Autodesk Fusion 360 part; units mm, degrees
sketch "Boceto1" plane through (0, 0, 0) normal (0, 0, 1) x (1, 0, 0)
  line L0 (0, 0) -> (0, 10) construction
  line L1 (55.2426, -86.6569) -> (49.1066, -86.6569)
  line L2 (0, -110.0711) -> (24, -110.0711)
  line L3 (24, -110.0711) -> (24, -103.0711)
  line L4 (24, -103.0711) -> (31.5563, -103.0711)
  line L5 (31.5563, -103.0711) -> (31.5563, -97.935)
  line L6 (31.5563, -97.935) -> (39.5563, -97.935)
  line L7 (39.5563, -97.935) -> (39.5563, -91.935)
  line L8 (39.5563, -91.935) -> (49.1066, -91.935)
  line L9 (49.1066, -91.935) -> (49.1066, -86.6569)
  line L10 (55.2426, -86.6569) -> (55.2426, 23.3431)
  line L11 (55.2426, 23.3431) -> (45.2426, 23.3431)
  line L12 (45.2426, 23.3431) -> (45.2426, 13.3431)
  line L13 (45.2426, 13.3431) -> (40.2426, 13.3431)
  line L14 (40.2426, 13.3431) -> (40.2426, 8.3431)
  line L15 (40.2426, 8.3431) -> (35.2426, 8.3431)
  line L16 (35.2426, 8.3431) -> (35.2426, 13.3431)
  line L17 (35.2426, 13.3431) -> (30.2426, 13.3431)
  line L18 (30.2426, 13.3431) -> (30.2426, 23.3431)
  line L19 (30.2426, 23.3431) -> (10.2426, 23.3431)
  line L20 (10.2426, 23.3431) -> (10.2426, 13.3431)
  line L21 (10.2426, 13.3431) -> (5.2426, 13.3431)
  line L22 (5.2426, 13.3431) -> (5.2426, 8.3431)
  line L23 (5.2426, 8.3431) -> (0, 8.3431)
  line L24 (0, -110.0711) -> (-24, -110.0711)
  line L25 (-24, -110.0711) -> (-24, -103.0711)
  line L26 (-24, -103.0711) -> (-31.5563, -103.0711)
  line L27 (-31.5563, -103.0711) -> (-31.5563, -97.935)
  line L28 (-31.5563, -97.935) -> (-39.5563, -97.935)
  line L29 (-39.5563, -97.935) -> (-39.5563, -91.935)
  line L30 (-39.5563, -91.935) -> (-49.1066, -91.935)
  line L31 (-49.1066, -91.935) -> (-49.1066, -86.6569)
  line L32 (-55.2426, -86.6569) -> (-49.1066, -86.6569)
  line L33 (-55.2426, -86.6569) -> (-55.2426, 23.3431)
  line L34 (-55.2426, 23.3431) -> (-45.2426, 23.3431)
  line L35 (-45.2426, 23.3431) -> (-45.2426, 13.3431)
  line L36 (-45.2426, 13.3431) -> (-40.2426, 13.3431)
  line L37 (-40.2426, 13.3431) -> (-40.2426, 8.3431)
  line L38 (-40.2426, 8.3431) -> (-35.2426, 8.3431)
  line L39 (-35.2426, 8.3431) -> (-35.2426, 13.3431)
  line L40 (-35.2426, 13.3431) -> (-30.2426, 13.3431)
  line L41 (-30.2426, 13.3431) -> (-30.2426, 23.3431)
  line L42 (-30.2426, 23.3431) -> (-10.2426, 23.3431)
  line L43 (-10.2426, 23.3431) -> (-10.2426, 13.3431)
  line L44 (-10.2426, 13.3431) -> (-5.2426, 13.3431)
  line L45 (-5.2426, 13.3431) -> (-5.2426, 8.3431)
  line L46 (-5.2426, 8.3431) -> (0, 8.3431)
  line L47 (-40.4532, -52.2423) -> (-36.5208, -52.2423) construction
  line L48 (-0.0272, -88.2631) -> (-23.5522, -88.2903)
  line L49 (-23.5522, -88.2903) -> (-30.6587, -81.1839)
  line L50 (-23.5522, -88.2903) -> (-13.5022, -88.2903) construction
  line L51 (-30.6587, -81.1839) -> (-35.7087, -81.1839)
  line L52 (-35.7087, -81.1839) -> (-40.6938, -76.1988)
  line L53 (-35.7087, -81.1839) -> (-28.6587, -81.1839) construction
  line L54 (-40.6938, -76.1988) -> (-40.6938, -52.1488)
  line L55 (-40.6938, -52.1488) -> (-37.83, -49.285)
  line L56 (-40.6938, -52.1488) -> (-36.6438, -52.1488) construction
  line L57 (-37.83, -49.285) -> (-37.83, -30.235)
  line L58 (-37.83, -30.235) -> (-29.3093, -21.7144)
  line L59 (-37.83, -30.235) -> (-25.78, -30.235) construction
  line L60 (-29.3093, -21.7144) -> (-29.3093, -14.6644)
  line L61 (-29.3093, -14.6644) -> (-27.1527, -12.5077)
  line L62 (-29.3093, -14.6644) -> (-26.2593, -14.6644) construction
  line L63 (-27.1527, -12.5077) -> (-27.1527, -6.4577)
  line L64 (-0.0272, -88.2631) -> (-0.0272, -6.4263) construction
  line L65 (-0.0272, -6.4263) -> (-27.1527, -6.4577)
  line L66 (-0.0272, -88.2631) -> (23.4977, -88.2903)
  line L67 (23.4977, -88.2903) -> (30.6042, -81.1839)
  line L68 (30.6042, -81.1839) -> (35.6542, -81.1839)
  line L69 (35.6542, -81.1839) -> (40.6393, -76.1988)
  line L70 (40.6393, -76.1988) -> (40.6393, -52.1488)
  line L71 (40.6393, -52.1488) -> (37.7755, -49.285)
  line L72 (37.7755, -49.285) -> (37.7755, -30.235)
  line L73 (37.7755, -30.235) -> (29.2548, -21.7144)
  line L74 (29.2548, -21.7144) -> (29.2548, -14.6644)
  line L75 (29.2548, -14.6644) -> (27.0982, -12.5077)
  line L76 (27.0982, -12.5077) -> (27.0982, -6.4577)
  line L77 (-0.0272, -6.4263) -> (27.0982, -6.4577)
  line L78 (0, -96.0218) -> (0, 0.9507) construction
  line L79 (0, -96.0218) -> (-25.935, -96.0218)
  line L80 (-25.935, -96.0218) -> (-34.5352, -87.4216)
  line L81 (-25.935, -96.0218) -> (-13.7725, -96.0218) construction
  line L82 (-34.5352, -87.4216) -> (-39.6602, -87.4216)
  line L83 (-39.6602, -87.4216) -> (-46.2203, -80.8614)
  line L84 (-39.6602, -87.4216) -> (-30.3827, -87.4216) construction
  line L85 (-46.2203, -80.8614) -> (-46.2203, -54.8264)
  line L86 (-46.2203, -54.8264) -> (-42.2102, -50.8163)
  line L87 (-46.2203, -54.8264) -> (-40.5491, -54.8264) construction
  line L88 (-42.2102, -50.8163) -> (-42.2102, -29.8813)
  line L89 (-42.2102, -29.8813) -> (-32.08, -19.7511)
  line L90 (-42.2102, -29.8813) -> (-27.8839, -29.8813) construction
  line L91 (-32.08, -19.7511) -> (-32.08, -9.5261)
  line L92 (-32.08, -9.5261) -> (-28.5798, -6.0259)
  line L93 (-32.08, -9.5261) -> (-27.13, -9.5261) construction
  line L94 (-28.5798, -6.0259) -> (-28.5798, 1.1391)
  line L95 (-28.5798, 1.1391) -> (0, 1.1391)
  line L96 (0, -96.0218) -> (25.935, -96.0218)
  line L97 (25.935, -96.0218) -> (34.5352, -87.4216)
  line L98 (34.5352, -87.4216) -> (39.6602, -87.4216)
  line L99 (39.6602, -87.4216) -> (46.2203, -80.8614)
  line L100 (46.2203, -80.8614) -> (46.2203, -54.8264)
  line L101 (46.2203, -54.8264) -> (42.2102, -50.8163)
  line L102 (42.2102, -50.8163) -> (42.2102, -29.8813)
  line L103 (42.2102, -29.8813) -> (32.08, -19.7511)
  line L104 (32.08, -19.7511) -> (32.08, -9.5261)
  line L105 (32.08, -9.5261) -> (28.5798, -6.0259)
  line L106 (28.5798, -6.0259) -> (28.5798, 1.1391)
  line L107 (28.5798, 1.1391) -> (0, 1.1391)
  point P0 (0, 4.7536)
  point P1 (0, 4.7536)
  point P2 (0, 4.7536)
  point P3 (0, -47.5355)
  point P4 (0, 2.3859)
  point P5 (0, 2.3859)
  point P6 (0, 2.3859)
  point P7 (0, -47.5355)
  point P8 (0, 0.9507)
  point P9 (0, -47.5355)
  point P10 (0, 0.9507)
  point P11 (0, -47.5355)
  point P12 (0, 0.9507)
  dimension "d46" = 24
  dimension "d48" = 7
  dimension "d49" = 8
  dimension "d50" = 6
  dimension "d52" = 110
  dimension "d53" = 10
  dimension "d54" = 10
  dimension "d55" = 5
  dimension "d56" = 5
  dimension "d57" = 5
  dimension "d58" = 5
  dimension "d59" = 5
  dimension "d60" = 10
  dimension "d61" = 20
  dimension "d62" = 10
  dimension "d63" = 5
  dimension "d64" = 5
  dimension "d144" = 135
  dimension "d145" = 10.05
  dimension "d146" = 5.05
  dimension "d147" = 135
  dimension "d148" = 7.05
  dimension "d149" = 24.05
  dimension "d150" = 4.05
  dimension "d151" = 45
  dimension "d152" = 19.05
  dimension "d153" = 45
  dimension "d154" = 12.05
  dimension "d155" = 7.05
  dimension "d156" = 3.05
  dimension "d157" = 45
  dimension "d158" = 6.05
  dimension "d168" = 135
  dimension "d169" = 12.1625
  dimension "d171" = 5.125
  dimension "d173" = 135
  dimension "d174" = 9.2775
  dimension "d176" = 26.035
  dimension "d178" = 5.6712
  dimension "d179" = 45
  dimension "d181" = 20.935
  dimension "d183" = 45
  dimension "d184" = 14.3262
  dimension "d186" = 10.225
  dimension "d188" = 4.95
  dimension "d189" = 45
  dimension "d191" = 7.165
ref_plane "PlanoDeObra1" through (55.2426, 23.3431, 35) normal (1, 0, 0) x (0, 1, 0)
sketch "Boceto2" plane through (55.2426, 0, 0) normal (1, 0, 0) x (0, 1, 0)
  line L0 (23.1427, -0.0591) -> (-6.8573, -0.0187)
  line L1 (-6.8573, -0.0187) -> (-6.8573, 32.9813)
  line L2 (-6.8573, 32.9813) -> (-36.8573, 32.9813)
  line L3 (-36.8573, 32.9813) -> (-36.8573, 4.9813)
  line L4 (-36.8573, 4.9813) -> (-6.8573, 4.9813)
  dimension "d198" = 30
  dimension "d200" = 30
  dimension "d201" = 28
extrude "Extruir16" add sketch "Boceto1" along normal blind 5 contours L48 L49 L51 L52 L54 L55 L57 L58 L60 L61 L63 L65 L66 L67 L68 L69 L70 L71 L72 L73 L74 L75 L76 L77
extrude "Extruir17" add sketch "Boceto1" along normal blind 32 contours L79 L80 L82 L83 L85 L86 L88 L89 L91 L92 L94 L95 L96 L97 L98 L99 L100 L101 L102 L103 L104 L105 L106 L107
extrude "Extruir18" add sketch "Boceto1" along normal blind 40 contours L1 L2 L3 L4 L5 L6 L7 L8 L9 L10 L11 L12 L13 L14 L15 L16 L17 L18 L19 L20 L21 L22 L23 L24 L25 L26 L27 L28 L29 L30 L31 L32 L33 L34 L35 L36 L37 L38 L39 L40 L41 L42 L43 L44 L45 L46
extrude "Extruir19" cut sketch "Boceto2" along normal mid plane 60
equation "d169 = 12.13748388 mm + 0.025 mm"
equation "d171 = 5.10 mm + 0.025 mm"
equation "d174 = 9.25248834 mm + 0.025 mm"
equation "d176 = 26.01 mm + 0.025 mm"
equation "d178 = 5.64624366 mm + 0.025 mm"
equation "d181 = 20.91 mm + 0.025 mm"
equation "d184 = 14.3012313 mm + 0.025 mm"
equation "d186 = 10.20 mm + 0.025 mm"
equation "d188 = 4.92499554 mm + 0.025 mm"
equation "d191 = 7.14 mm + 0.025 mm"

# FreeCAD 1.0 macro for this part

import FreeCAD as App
import Part
import Sketcher
from FreeCAD import Vector
Q = App.Units.Quantity

doc = App.newDocument("Part")
body = doc.addObject("PartDesign::Body", "Body")

sketch1 = body.newObject("Sketcher::SketchObject", "Sketch")
sketch1.AttachmentSupport = (doc.getObject("XY_Plane"), [""])
sketch1.MapMode = "FlatFace"
sketch1.addGeometry(Part.LineSegment(Vector(-23.5522, -88.2903, 0), Vector(-0.0272, -88.2631, 0)), False)
sketch1.addGeometry(Part.LineSegment(Vector(-0.0272, -88.2631, 0), Vector(23.4977, -88.2903, 0)), False)
sketch1.addGeometry(Part.LineSegment(Vector(23.4977, -88.2903, 0), Vector(30.6042, -81.1839, 0)), False)
sketch1.addGeometry(Part.LineSegment(Vector(30.6042, -81.1839, 0), Vector(35.6542, -81.1839, 0)), False)
sketch1.addGeometry(Part.LineSegment(Vector(35.6542, -81.1839, 0), Vector(40.6393, -76.1988, 0)), False)
sketch1.addGeometry(Part.LineSegment(Vector(40.6393, -76.1988, 0), Vector(40.6393, -52.1488, 0)), False)
sketch1.addGeometry(Part.LineSegment(Vector(40.6393, -52.1488, 0), Vector(37.7755, -49.285, 0)), False)
sketch1.addGeometry(Part.LineSegment(Vector(37.7755, -49.285, 0), Vector(37.7755, -30.235, 0)), False)
sketch1.addGeometry(Part.LineSegment(Vector(37.7755, -30.235, 0), Vector(29.2548, -21.7144, 0)), False)
sketch1.addGeometry(Part.LineSegment(Vector(29.2548, -21.7144, 0), Vector(29.2548, -14.6644, 0)), False)
sketch1.addGeometry(Part.LineSegment(Vector(29.2548, -14.6644, 0), Vector(27.0982, -12.5077, 0)), False)
sketch1.addGeometry(Part.LineSegment(Vector(27.0982, -12.5077, 0), Vector(27.0982, -6.4577, 0)), False)
sketch1.addGeometry(Part.LineSegment(Vector(27.0982, -6.4577, 0), Vector(-0.0272, -6.4263, 0)), False)
sketch1.addGeometry(Part.LineSegment(Vector(-0.0272, -6.4263, 0), Vector(-27.1527, -6.4577, 0)), False)
sketch1.addGeometry(Part.LineSegment(Vector(-27.1527, -6.4577, 0), Vector(-27.1527, -12.5077, 0)), False)
sketch1.addGeometry(Part.LineSegment(Vector(-27.1527, -12.5077, 0), Vector(-29.3093, -14.6644, 0)), False)
sketch1.addGeometry(Part.LineSegment(Vector(-29.3093, -14.6644, 0), Vector(-29.3093, -21.7144, 0)), False)
sketch1.addGeometry(Part.LineSegment(Vector(-29.3093, -21.7144, 0), Vector(-37.83, -30.235, 0)), False)
sketch1.addGeometry(Part.LineSegment(Vector(-37.83, -30.235, 0), Vector(-37.83, -49.285, 0)), False)
sketch1.addGeometry(Part.LineSegment(Vector(-37.83, -49.285, 0), Vector(-40.6938, -52.1488, 0)), False)
sketch1.addGeometry(Part.LineSegment(Vector(-40.6938, -52.1488, 0), Vector(-40.6938, -76.1988, 0)), False)
sketch1.addGeometry(Part.LineSegment(Vector(-40.6938, -76.1988, 0), Vector(-35.7087, -81.1839, 0)), False)
sketch1.addGeometry(Part.LineSegment(Vector(-35.7087, -81.1839, 0), Vector(-30.6587, -81.1839, 0)), False)
sketch1.addGeometry(Part.LineSegment(Vector(-30.6587, -81.1839, 0), Vector(-23.5522, -88.2903, 0)), False)
sketch1.addConstraint(Sketcher.Constraint("Coincident", 0, 2, 1, 1))
sketch1.addConstraint(Sketcher.Constraint("Coincident", 1, 2, 2, 1))
sketch1.addConstraint(Sketcher.Constraint("Coincident", 2, 2, 3, 1))
sketch1.addConstraint(Sketcher.Constraint("Coincident", 3, 2, 4, 1))
sketch1.addConstraint(Sketcher.Constraint("Coincident", 4, 2, 5, 1))
sketch1.addConstraint(Sketcher.Constraint("Coincident", 5, 2, 6, 1))
sketch1.addConstraint(Sketcher.Constraint("Coincident", 6, 2, 7, 1))
sketch1.addConstraint(Sketcher.Constraint("Coincident", 7, 2, 8, 1))
sketch1.addConstraint(Sketcher.Constraint("Coincident", 8, 2, 9, 1))
sketch1.addConstraint(Sketcher.Constraint("Coincident", 9, 2, 10, 1))
sketch1.addConstraint(Sketcher.Constraint("Coincident", 10, 2, 11, 1))
sketch1.addConstraint(Sketcher.Constraint("Coincident", 11, 2, 12, 1))
sketch1.addConstraint(Sketcher.Constraint("Coincident", 12, 2, 13, 1))
sketch1.addConstraint(Sketcher.Constraint("Coincident", 13, 2, 14, 1))
sketch1.addConstraint(Sketcher.Constraint("Coincident", 14, 2, 15, 1))
sketch1.addConstraint(Sketcher.Constraint("Coincident", 15, 2, 16, 1))
sketch1.addConstraint(Sketcher.Constraint("Coincident", 16, 2, 17, 1))
sketch1.addConstraint(Sketcher.Constraint("Coincident", 17, 2, 18, 1))
sketch1.addConstraint(Sketcher.Constraint("Coincident", 18, 2, 19, 1))
sketch1.addConstraint(Sketcher.Constraint("Coincident", 19, 2, 20, 1))
sketch1.addConstraint(Sketcher.Constraint("Coincident", 20, 2, 21, 1))
sketch1.addConstraint(Sketcher.Constraint("Coincident", 21, 2, 22, 1))
sketch1.addConstraint(Sketcher.Constraint("Coincident", 22, 2, 23, 1))
sketch1.addConstraint(Sketcher.Constraint("Coincident", 23, 2, 0, 1))
sketch1.addConstraint(Sketcher.Constraint("Horizontal", 3))
sketch1.addConstraint(Sketcher.Constraint("Vertical", 5))
sketch1.addConstraint(Sketcher.Constraint("Vertical", 7))
sketch1.addConstraint(Sketcher.Constraint("Vertical", 9))
sketch1.addConstraint(Sketcher.Constraint("Vertical", 11))
sketch1.addConstraint(Sketcher.Constraint("Vertical", 14))
sketch1.addConstraint(Sketcher.Constraint("Vertical", 16))
sketch1.addConstraint(Sketcher.Constraint("Vertical", 18))
sketch1.addConstraint(Sketcher.Constraint("Vertical", 20))
sketch1.addConstraint(Sketcher.Constraint("Horizontal", 22))
sketch1.addConstraint(Sketcher.Constraint("Parallel", 2, 4))
sketch1.addConstraint(Sketcher.Constraint("Perpendicular", 4, 6))
sketch1.addConstraint(Sketcher.Constraint("Parallel", 6, 8))
sketch1.addConstraint(Sketcher.Constraint("Parallel", 8, 10))
sketch1.addConstraint(Sketcher.Constraint("Parallel", 1, 12))
sketch1.addConstraint(Sketcher.Constraint("Parallel", 0, 13))
sketch1.addConstraint(Sketcher.Constraint("Perpendicular", 10, 15))
sketch1.addConstraint(Sketcher.Constraint("Parallel", 15, 17))
sketch1.addConstraint(Sketcher.Constraint("Parallel", 17, 19))
sketch1.addConstraint(Sketcher.Constraint("Perpendicular", 19, 21))
sketch1.addConstraint(Sketcher.Constraint("Parallel", 21, 23))
sketch1.addConstraint(Sketcher.Constraint("Horizontal", 11, 2, 13, 2))
sketch1.addConstraint(Sketcher.Constraint("Horizontal", 10, 2, 14, 2))
sketch1.addConstraint(Sketcher.Constraint("Horizontal", 9, 2, 15, 2))
sketch1.addConstraint(Sketcher.Constraint("Horizontal", 8, 2, 16, 2))
sketch1.addConstraint(Sketcher.Constraint("Horizontal", 7, 2, 17, 2))
sketch1.addConstraint(Sketcher.Constraint("Horizontal", 6, 2, 18, 2))
sketch1.addConstraint(Sketcher.Constraint("Horizontal", 5, 2, 19, 2))
sketch1.addConstraint(Sketcher.Constraint("Horizontal", 4, 2, 20, 2))
sketch1.addConstraint(Sketcher.Constraint("Horizontal", 3, 2, 21, 2))
sketch1.addConstraint(Sketcher.Constraint("Vertical", 0, 2, 12, 2))
sketch1.addConstraint(Sketcher.Constraint("Equal", 3, 22))
sketch1.addConstraint(Sketcher.Constraint("Equal", 0, 1))
sketch1.addConstraint(Sketcher.Constraint("Equal", 12, 13))
sketch1.addConstraint(Sketcher.Constraint("DistanceX", 3, 1, 3, 2, Q("5.05 mm")))
sketch1.addConstraint(Sketcher.Constraint("DistanceY", 5, 1, 5, 2, Q("24.05 mm")))
sketch1.addConstraint(Sketcher.Constraint("DistanceY", 7, 1, 7, 2, Q("19.05 mm")))
sketch1.addConstraint(Sketcher.Constraint("DistanceY", 9, 1, 9, 2, Q("7.05 mm")))
sketch1.addConstraint(Sketcher.Constraint("DistanceY", 11, 1, 11, 2, Q("6.05 mm")))
sketch1.addConstraint(Sketcher.Constraint("Distance", 2, Q("10.05 mm")))
sketch1.addConstraint(Sketcher.Constraint("Distance", 4, Q("7.05 mm")))
sketch1.addConstraint(Sketcher.Constraint("Distance", 6, Q("4.05 mm")))
sketch1.addConstraint(Sketcher.Constraint("Distance", 8, Q("12.05 mm")))
sketch1.addConstraint(Sketcher.Constraint("Distance", 10, Q("3.05 mm")))
sketch1.addConstraint(Sketcher.Constraint("DistanceX", 17, 2, -1, 1, Q("37.83 mm")))
sketch1.addConstraint(Sketcher.Constraint("Distance", 0, Q("23.525 mm")))
sketch1.addConstraint(Sketcher.Constraint("DistanceY", 0, 2, -1, 1, Q("88.263 mm")))
sketch1.addConstraint(Sketcher.Constraint("DistanceY", 2, 2, -1, 1, Q("81.184 mm")))
pad1 = body.newObject("PartDesign::Pad", "Pad")
pad1.Profile = sketch1
pad1.Length = 5

sketch2 = body.newObject("Sketcher::SketchObject", "Sketch001")
sketch2.AttachmentSupport = (doc.getObject("XY_Plane"), [""])
sketch2.MapMode = "FlatFace"
sketch2.addGeometry(Part.LineSegment(Vector(-25.935, -96.0218, 0), Vector(25.935, -96.0218, 0)), False)
sketch2.addGeometry(Part.LineSegment(Vector(25.935, -96.0218, 0), Vector(34.5352, -87.4216, 0)), False)
sketch2.addGeometry(Part.LineSegment(Vector(34.5352, -87.4216, 0), Vector(39.6602, -87.4216, 0)), False)
sketch2.addGeometry(Part.LineSegment(Vector(39.6602, -87.4216, 0), Vector(46.2203, -80.8614, 0)), False)
sketch2.addGeometry(Part.LineSegment(Vector(46.2203, -80.8614, 0), Vector(46.2203, -54.8264, 0)), False)
sketch2.addGeometry(Part.LineSegment(Vector(46.2203, -54.8264, 0), Vector(42.2102, -50.8163, 0)), False)
sketch2.addGeometry(Part.LineSegment(Vector(42.2102, -50.8163, 0), Vector(42.2102, -29.8813, 0)), False)
sketch2.addGeometry(Part.LineSegment(Vector(42.2102, -29.8813, 0), Vector(32.08, -19.7511, 0)), False)
sketch2.addGeometry(Part.LineSegment(Vector(32.08, -19.7511, 0), Vector(32.08, -9.5261, 0)), False)
sketch2.addGeometry(Part.LineSegment(Vector(32.08, -9.5261, 0), Vector(28.5798, -6.0259, 0)), False)
sketch2.addGeometry(Part.LineSegment(Vector(28.5798, -6.0259, 0), Vector(28.5798, 1.1391, 0)), False)
sketch2.addGeometry(Part.LineSegment(Vector(28.5798, 1.1391, 0), Vector(-28.5798, 1.1391, 0)), False)
sketch2.addGeometry(Part.LineSegment(Vector(-28.5798, 1.1391, 0), Vector(-28.5798, -6.0259, 0)), False)
sketch2.addGeometry(Part.LineSegment(Vector(-28.5798, -6.0259, 0), Vector(-32.08, -9.5261, 0)), False)
sketch2.addGeometry(Part.LineSegment(Vector(-32.08, -9.5261, 0), Vector(-32.08, -19.7511, 0)), False)
sketch2.addGeometry(Part.LineSegment(Vector(-32.08, -19.7511, 0), Vector(-42.2102, -29.8813, 0)), False)
sketch2.addGeometry(Part.LineSegment(Vector(-42.2102, -29.8813, 0), Vector(-42.2102, -50.8163, 0)), False)
sketch2.addGeometry(Part.LineSegment(Vector(-42.2102, -50.8163, 0), Vector(-46.2203, -54.8264, 0)), False)
sketch2.addGeometry(Part.LineSegment(Vector(-46.2203, -54.8264, 0), Vector(-46.2203, -80.8614, 0)), False)
sketch2.addGeometry(Part.LineSegment(Vector(-46.2203, -80.8614, 0), Vector(-39.6602, -87.4216, 0)), False)
sketch2.addGeometry(Part.LineSegment(Vector(-39.6602, -87.4216, 0), Vector(-34.5352, -87.4216, 0)), False)
sketch2.addGeometry(Part.LineSegment(Vector(-34.5352, -87.4216, 0), Vector(-25.935, -96.0218, 0)), False)
sketch2.addGeometry(Part.LineSegment(Vector(23.4977, -88.2903, 0), Vector(-0.0272, -88.2631, 0)), False)
sketch2.addGeometry(Part.LineSegment(Vector(-0.0272, -88.2631, 0), Vector(-23.5522, -88.2903, 0)), False)
sketch2.addGeometry(Part.LineSegment(Vector(-23.5522, -88.2903, 0), Vector(-30.6587, -81.1839, 0)), False)
sketch2.addGeometry(Part.LineSegment(Vector(-30.6587, -81.1839, 0), Vector(-35.7087, -81.1839, 0)), False)
sketch2.addGeometry(Part.LineSegment(Vector(-35.7087, -81.1839, 0), Vector(-40.6938, -76.1988, 0)), False)
sketch2.addGeometry(Part.LineSegment(Vector(-40.6938, -76.1988, 0), Vector(-40.6938, -52.1488, 0)), False)
sketch2.addGeometry(Part.LineSegment(Vector(-40.6938, -52.1488, 0), Vector(-37.83, -49.285, 0)), False)
sketch2.addGeometry(Part.LineSegment(Vector(-37.83, -49.285, 0), Vector(-37.83, -30.235, 0)), False)
sketch2.addGeometry(Part.LineSegment(Vector(-37.83, -30.235, 0), Vector(-29.3093, -21.7144, 0)), False)
sketch2.addGeometry(Part.LineSegment(Vector(-29.3093, -21.7144, 0), Vector(-29.3093, -14.6644, 0)), False)
sketch2.addGeometry(Part.LineSegment(Vector(-29.3093, -14.6644, 0), Vector(-27.1527, -12.5077, 0)), False)
sketch2.addGeometry(Part.LineSegment(Vector(-27.1527, -12.5077, 0), Vector(-27.1527, -6.4577, 0)), False)
sketch2.addGeometry(Part.LineSegment(Vector(-27.1527, -6.4577, 0), Vector(-0.0272, -6.4263, 0)), False)
sketch2.addGeometry(Part.LineSegment(Vector(-0.0272, -6.4263, 0), Vector(27.0982, -6.4577, 0)), False)
sketch2.addGeometry(Part.LineSegment(Vector(27.0982, -6.4577, 0), Vector(27.0982, -12.5077, 0)), False)
sketch2.addGeometry(Part.LineSegment(Vector(27.0982, -12.5077, 0), Vector(29.2548, -14.6644, 0)), False)
sketch2.addGeometry(Part.LineSegment(Vector(29.2548, -14.6644, 0), Vector(29.2548, -21.7144, 0)), False)
sketch2.addGeometry(Part.LineSegment(Vector(29.2548, -21.7144, 0), Vector(37.7755, -30.235, 0)), False)
sketch2.addGeometry(Part.LineSegment(Vector(37.7755, -30.235, 0), Vector(37.7755, -49.285, 0)), False)
sketch2.addGeometry(Part.LineSegment(Vector(37.7755, -49.285, 0), Vector(40.6393, -52.1488, 0)), False)
sketch2.addGeometry(Part.LineSegment(Vector(40.6393, -52.1488, 0), Vector(40.6393, -76.1988, 0)), False)
sketch2.addGeometry(Part.LineSegment(Vector(40.6393, -76.1988, 0), Vector(35.6542, -81.1839, 0)), False)
sketch2.addGeometry(Part.LineSegment(Vector(35.6542, -81.1839, 0), Vector(30.6042, -81.1839, 0)), False)
sketch2.addGeometry(Part.LineSegment(Vector(30.6042, -81.1839, 0), Vector(23.4977, -88.2903, 0)), False)
sketch2.addConstraint(Sketcher.Constraint("Coincident", 0, 2, 1, 1))
sketch2.addConstraint(Sketcher.Constraint("Coincident", 1, 2, 2, 1))
sketch2.addConstraint(Sketcher.Constraint("Coincident", 2, 2, 3, 1))
sketch2.addConstraint(Sketcher.Constraint("Coincident", 3, 2, 4, 1))
sketch2.addConstraint(Sketcher.Constraint("Coincident", 4, 2, 5, 1))
sketch2.addConstraint(Sketcher.Constraint("Coincident", 5, 2, 6, 1))
sketch2.addConstraint(Sketcher.Constraint("Coincident", 6, 2, 7, 1))
sketch2.addConstraint(Sketcher.Constraint("Coincident", 7, 2, 8, 1))
sketch2.addConstraint(Sketcher.Constraint("Coincident", 8, 2, 9, 1))
sketch2.addConstraint(Sketcher.Constraint("Coincident", 9, 2, 10, 1))
sketch2.addConstraint(Sketcher.Constraint("Coincident", 10, 2, 11, 1))
sketch2.addConstraint(Sketcher.Constraint("Coincident", 11, 2, 12, 1))
sketch2.addConstraint(Sketcher.Constraint("Coincident", 12, 2, 13, 1))
sketch2.addConstraint(Sketcher.Constraint("Coincident", 13, 2, 14, 1))
sketch2.addConstraint(Sketcher.Constraint("Coincident", 14, 2, 15, 1))
sketch2.addConstraint(Sketcher.Constraint("Coincident", 15, 2, 16, 1))
sketch2.addConstraint(Sketcher.Constraint("Coincident", 16, 2, 17, 1))
sketch2.addConstraint(Sketcher.Constraint("Coincident", 17, 2, 18, 1))
sketch2.addConstraint(Sketcher.Constraint("Coincident", 18, 2, 19, 1))
sketch2.addConstraint(Sketcher.Constraint("Coincident", 19, 2, 20, 1))
sketch2.addConstraint(Sketcher.Constraint("Coincident", 20, 2, 21, 1))
sketch2.addConstraint(Sketcher.Constraint("Coincident", 21, 2, 0, 1))
sketch2.addConstraint(Sketcher.Constraint("Coincident", 22, 2, 23, 1))
sketch2.addConstraint(Sketcher.Constraint("Coincident", 23, 2, 24, 1))
sketch2.addConstraint(Sketcher.Constraint("Coincident", 24, 2, 25, 1))
sketch2.addConstraint(Sketcher.Constraint("Coincident", 25, 2, 26, 1))
sketch2.addConstraint(Sketcher.Constraint("Coincident", 26, 2, 27, 1))
sketch2.addConstraint(Sketcher.Constraint("Coincident", 27, 2, 28, 1))
sketch2.addConstraint(Sketcher.Constraint("Coincident", 28, 2, 29, 1))
sketch2.addConstraint(Sketcher.Constraint("Coincident", 29, 2, 30, 1))
sketch2.addConstraint(Sketcher.Constraint("Coincident", 30, 2, 31, 1))
sketch2.addConstraint(Sketcher.Constraint("Coincident", 31, 2, 32, 1))
sketch2.addConstraint(Sketcher.Constraint("Coincident", 32, 2, 33, 1))
sketch2.addConstraint(Sketcher.Constraint("Coincident", 33, 2, 34, 1))
sketch2.addConstraint(Sketcher.Constraint("Coincident", 34, 2, 35, 1))
sketch2.addConstraint(Sketcher.Constraint("Coincident", 35, 2, 36, 1))
sketch2.addConstraint(Sketcher.Constraint("Coincident", 36, 2, 37, 1))
sketch2.addConstraint(Sketcher.Constraint("Coincident", 37, 2, 38, 1))
sketch2.addConstraint(Sketcher.Constraint("Coincident", 38, 2, 39, 1))
sketch2.addConstraint(Sketcher.Constraint("Coincident", 39, 2, 40, 1))
sketch2.addConstraint(Sketcher.Constraint("Coincident", 40, 2, 41, 1))
sketch2.addConstraint(Sketcher.Constraint("Coincident", 41, 2, 42, 1))
sketch2.addConstraint(Sketcher.Constraint("Coincident", 42, 2, 43, 1))
sketch2.addConstraint(Sketcher.Constraint("Coincident", 43, 2, 44, 1))
sketch2.addConstraint(Sketcher.Constraint("Coincident", 44, 2, 45, 1))
sketch2.addConstraint(Sketcher.Constraint("Coincident", 45, 2, 22, 1))
sketch2.addConstraint(Sketcher.Constraint("Horizontal", 0))
sketch2.addConstraint(Sketcher.Constraint("Horizontal", 2))
sketch2.addConstraint(Sketcher.Constraint("Vertical", 4))
sketch2.addConstraint(Sketcher.Constraint("Vertical", 6))
sketch2.addConstraint(Sketcher.Constraint("Vertical", 8))
sketch2.addConstraint(Sketcher.Constraint("Vertical", 10))
sketch2.addConstraint(Sketcher.Constraint("Horizontal", 11))
sketch2.addConstraint(Sketcher.Constraint("Vertical", 12))
sketch2.addConstraint(Sketcher.Constraint("Vertical", 14))
sketch2.addConstraint(Sketcher.Constraint("Vertical", 16))
sketch2.addConstraint(Sketcher.Constraint("Vertical", 18))
sketch2.addConstraint(Sketcher.Constraint("Horizontal", 20))
sketch2.addConstraint(Sketcher.Constraint("Horizontal", 25))
sketch2.addConstraint(Sketcher.Constraint("Vertical", 27))
sketch2.addConstraint(Sketcher.Constraint("Vertical", 29))
sketch2.addConstraint(Sketcher.Constraint("Vertical", 31))
sketch2.addConstraint(Sketcher.Constraint("Vertical", 33))
sketch2.addConstraint(Sketcher.Constraint("Vertical", 36))
sketch2.addConstraint(Sketcher.Constraint("Vertical", 38))
sketch2.addConstraint(Sketcher.Constraint("Vertical", 40))
sketch2.addConstraint(Sketcher.Constraint("Vertical", 42))
sketch2.addConstraint(Sketcher.Constraint("Horizontal", 44))
sketch2.addConstraint(Sketcher.Constraint("Symmetric", 9, 2, 12, 2, -2))
sketch2.addConstraint(Sketcher.Constraint("Symmetric", 8, 2, 13, 2, -2))
sketch2.addConstraint(Sketcher.Constraint("Symmetric", 6, 2, 15, 2, -2))
sketch2.addConstraint(Sketcher.Constraint("Symmetric", 4, 2, 17, 2, -2))
sketch2.addConstraint(Sketcher.Constraint("Symmetric", 2, 2, 19, 2, -2))
sketch2.addConstraint(Sketcher.Constraint("Parallel", 1, 3))
sketch2.addConstraint(Sketcher.Constraint("Perpendicular", 3, 5))
sketch2.addConstraint(Sketcher.Constraint("Parallel", 5, 7))
sketch2.addConstraint(Sketcher.Constraint("Parallel", 7, 9))
sketch2.addConstraint(Sketcher.Constraint("Perpendicular", 9, 13))
sketch2.addConstraint(Sketcher.Constraint("Parallel", 13, 15))
sketch2.addConstraint(Sketcher.Constraint("Parallel", 15, 17))
sketch2.addConstraint(Sketcher.Constraint("Perpendicular", 17, 19))
sketch2.addConstraint(Sketcher.Constraint("Parallel", 19, 21))
sketch2.addConstraint(Sketcher.Constraint("Parallel", 21, 24))
sketch2.addConstraint(Sketcher.Constraint("Parallel", 24, 26))
sketch2.addConstraint(Sketcher.Constraint("Perpendicular", 26, 28))
sketch2.addConstraint(Sketcher.Constraint("Parallel", 28, 30))
sketch2.addConstraint(Sketcher.Constraint("Parallel", 30, 32))
sketch2.addConstraint(Sketcher.Constraint("Parallel", 23, 34))
sketch2.addConstraint(Sketcher.Constraint("Parallel", 22, 35))
sketch2.addConstraint(Sketcher.Constraint("Perpendicular", 32, 37))
sketch2.addConstraint(Sketcher.Constraint("Parallel", 37, 39))
sketch2.addConstraint(Sketcher.Constraint("Parallel", 39, 41))
sketch2.addConstraint(Sketcher.Constraint("Perpendicular", 41, 43))
sketch2.addConstraint(Sketcher.Constraint("Parallel", 43, 45))
sketch2.addConstraint(Sketcher.Constraint("Horizontal", 33, 2, 35, 2))
sketch2.addConstraint(Sketcher.Constraint("Horizontal", 32, 2, 36, 2))
sketch2.addConstraint(Sketcher.Constraint("Horizontal", 31, 2, 37, 2))
sketch2.addConstraint(Sketcher.Constraint("Horizontal", 30, 2, 38, 2))
sketch2.addConstraint(Sketcher.Constraint("Horizontal", 29, 2, 39, 2))
sketch2.addConstraint(Sketcher.Constraint("Horizontal", 28, 2, 40, 2))
sketch2.addConstraint(Sketcher.Constraint("Horizontal", 27, 2, 41, 2))
sketch2.addConstraint(Sketcher.Constraint("Horizontal", 26, 2, 42, 2))
sketch2.addConstraint(Sketcher.Constraint("Horizontal", 25, 2, 43, 2))
sketch2.addConstraint(Sketcher.Constraint("Vertical", 22, 2, 34, 2))
sketch2.addConstraint(Sketcher.Constraint("Equal", 2, 20))
sketch2.addConstraint(Sketcher.Constraint("Equal", 25, 44))
sketch2.addConstraint(Sketcher.Constraint("Equal", 22, 23))
sketch2.addConstraint(Sketcher.Constraint("DistanceX", 25, 2, 25, 1, Q("5.05 mm")))
sketch2.addConstraint(Sketcher.Constraint("DistanceY", 27, 1, 27, 2, Q("24.05 mm")))
sketch2.addConstraint(Sketcher.Constraint("DistanceY", 29, 1, 29, 2, Q("19.05 mm")))
sketch2.addConstraint(Sketcher.Constraint("DistanceY", 31, 1, 31, 2, Q("7.05 mm")))
sketch2.addConstraint(Sketcher.Constraint("DistanceY", 33, 1, 33, 2, Q("6.05 mm")))
sketch2.addConstraint(Sketcher.Constraint("Distance", 9, Q("4.95 mm")))
sketch2.addConstraint(Sketcher.Constraint("Distance", 24, Q("10.05 mm")))
sketch2.addConstraint(Sketcher.Constraint("Distance", 26, Q("7.05 mm")))
sketch2.addConstraint(Sketcher.Constraint("Distance", 28, Q("4.05 mm")))
sketch2.addConstraint(Sketcher.Constraint("Distance", 30, Q("12.05 mm")))
sketch2.addConstraint(Sketcher.Constraint("Distance", 32, Q("3.05 mm")))
sketch2.addConstraint(Sketcher.Constraint("DistanceX", 2, 1, 2, 2, Q("5.125 mm")))
sketch2.addConstraint(Sketcher.Constraint("DistanceY", 4, 1, 4, 2, Q("26.035 mm")))
sketch2.addConstraint(Sketcher.Constraint("DistanceY", 6, 1, 6, 2, Q("20.935 mm")))
sketch2.addConstraint(Sketcher.Constraint("DistanceY", 8, 1, 8, 2, Q("10.225 mm")))
sketch2.addConstraint(Sketcher.Constraint("DistanceY", 10, 1, 10, 2, Q("7.165 mm")))
sketch2.addConstraint(Sketcher.Constraint("Distance", 1, Q("12.1625 mm")))
sketch2.addConstraint(Sketcher.Constraint("Distance", 3, Q("9.2775 mm")))
sketch2.addConstraint(Sketcher.Constraint("Distance", 5, Q("5.6711 mm")))
sketch2.addConstraint(Sketcher.Constraint("Distance", 7, Q("14.3263 mm")))
sketch2.addConstraint(Sketcher.Constraint("DistanceX", 0, 1, 0, 2, Q("51.87 mm")))
sketch2.addConstraint(Sketcher.Constraint("DistanceX", 28, 2, -1, 1, Q("37.83 mm")))
sketch2.addConstraint(Sketcher.Constraint("Distance", 22, Q("23.525 mm")))
sketch2.addConstraint(Sketcher.Constraint("DistanceY", 7, 2, -1, 1, Q("19.751 mm")))
sketch2.addConstraint(Sketcher.Constraint("DistanceY", 22, 2, -1, 1, Q("88.263 mm")))
sketch2.addConstraint(Sketcher.Constraint("DistanceY", 24, 2, -1, 1, Q("81.184 mm")))
pad2 = body.newObject("PartDesign::Pad", "Pad001")
pad2.Profile = sketch2
pad2.Length = 32

sketch3 = body.newObject("Sketcher::SketchObject", "Sketch002")
sketch3.AttachmentSupport = (doc.getObject("XY_Plane"), [""])
sketch3.MapMode = "FlatFace"
sketch3.addGeometry(Part.LineSegment(Vector(49.1066, -86.6569, 0), Vector(55.2426, -86.6569, 0)), False)
sketch3.addGeometry(Part.LineSegment(Vector(55.2426, -86.6569, 0), Vector(55.2426, 23.3431, 0)), False)
sketch3.addGeometry(Part.LineSegment(Vector(55.2426, 23.3431, 0), Vector(45.2426, 23.3431, 0)), False)
sketch3.addGeometry(Part.LineSegment(Vector(45.2426, 23.3431, 0), Vector(45.2426, 13.3431, 0)), False)
sketch3.addGeometry(Part.LineSegment(Vector(45.2426, 13.3431, 0), Vector(40.2426, 13.3431, 0)), False)
sketch3.addGeometry(Part.LineSegment(Vector(40.2426, 13.3431, 0), Vector(40.2426, 8.3431, 0)), False)
sketch3.addGeometry(Part.LineSegment(Vector(40.2426, 8.3431, 0), Vector(35.2426, 8.3431, 0)), False)
sketch3.addGeometry(Part.LineSegment(Vector(35.2426, 8.3431, 0), Vector(35.2426, 13.3431, 0)), False)
sketch3.addGeometry(Part.LineSegment(Vector(35.2426, 13.3431, 0), Vector(30.2426, 13.3431, 0)), False)
sketch3.addGeometry(Part.LineSegment(Vector(30.2426, 13.3431, 0), Vector(30.2426, 23.3431, 0)), False)
sketch3.addGeometry(Part.LineSegment(Vector(30.2426, 23.3431, 0), Vector(10.2426, 23.3431, 0)), False)
sketch3.addGeometry(Part.LineSegment(Vector(10.2426, 23.3431, 0), Vector(10.2426, 13.3431, 0)), False)
sketch3.addGeometry(Part.LineSegment(Vector(10.2426, 13.3431, 0), Vector(5.2426, 13.3431, 0)), False)
sketch3.addGeometry(Part.LineSegment(Vector(5.2426, 13.3431, 0), Vector(5.2426, 8.3431, 0)), False)
sketch3.addGeometry(Part.LineSegment(Vector(5.2426, 8.3431, 0), Vector(-5.2426, 8.3431, 0)), False)
sketch3.addGeometry(Part.LineSegment(Vector(-5.2426, 8.3431, 0), Vector(-5.2426, 13.3431, 0)), False)
sketch3.addGeometry(Part.LineSegment(Vector(-5.2426, 13.3431, 0), Vector(-10.2426, 13.3431, 0)), False)
sketch3.addGeometry(Part.LineSegment(Vector(-10.2426, 13.3431, 0), Vector(-10.2426, 23.3431, 0)), False)
sketch3.addGeometry(Part.LineSegment(Vector(-10.2426, 23.3431, 0), Vector(-30.2426, 23.3431, 0)), False)
sketch3.addGeometry(Part.LineSegment(Vector(-30.2426, 23.3431, 0), Vector(-30.2426, 13.3431, 0)), False)
sketch3.addGeometry(Part.LineSegment(Vector(-30.2426, 13.3431, 0), Vector(-35.2426, 13.3431, 0)), False)
sketch3.addGeometry(Part.LineSegment(Vector(-35.2426, 13.3431, 0), Vector(-35.2426, 8.3431, 0)), False)
sketch3.addGeometry(Part.LineSegment(Vector(-35.2426, 8.3431, 0), Vector(-40.2426, 8.3431, 0)), False)
sketch3.addGeometry(Part.LineSegment(Vector(-40.2426, 8.3431, 0), Vector(-40.2426, 13.3431, 0)), False)
sketch3.addGeometry(Part.LineSegment(Vector(-40.2426, 13.3431, 0), Vector(-45.2426, 13.3431, 0)), False)
sketch3.addGeometry(Part.LineSegment(Vector(-45.2426, 13.3431, 0), Vector(-45.2426, 23.3431, 0)), False)
sketch3.addGeometry(Part.LineSegment(Vector(-45.2426, 23.3431, 0), Vector(-55.2426, 23.3431, 0)), False)
sketch3.addGeometry(Part.LineSegment(Vector(-55.2426, 23.3431, 0), Vector(-55.2426, -86.6569, 0)), False)
sketch3.addGeometry(Part.LineSegment(Vector(-55.2426, -86.6569, 0), Vector(-49.1066, -86.6569, 0)), False)
sketch3.addGeometry(Part.LineSegment(Vector(-49.1066, -86.6569, 0), Vector(-49.1066, -91.935, 0)), False)
sketch3.addGeometry(Part.LineSegment(Vector(-49.1066, -91.935, 0), Vector(-39.5563, -91.935, 0)), False)
sketch3.addGeometry(Part.LineSegment(Vector(-39.5563, -91.935, 0), Vector(-39.5563, -97.935, 0)), False)
sketch3.addGeometry(Part.LineSegment(Vector(-39.5563, -97.935, 0), Vector(-31.5563, -97.935, 0)), False)
sketch3.addGeometry(Part.LineSegment(Vector(-31.5563, -97.935, 0), Vector(-31.5563, -103.0711, 0)), False)
sketch3.addGeometry(Part.LineSegment(Vector(-31.5563, -103.0711, 0), Vector(-24, -103.0711, 0)), False)
sketch3.addGeometry(Part.LineSegment(Vector(-24, -103.0711, 0), Vector(-24, -110.0711, 0)), False)
sketch3.addGeometry(Part.LineSegment(Vector(-24, -110.0711, 0), Vector(24, -110.0711, 0)), False)
sketch3.addGeometry(Part.LineSegment(Vector(24, -110.0711, 0), Vector(24, -103.0711, 0)), False)
sketch3.addGeometry(Part.LineSegment(Vector(24, -103.0711, 0), Vector(31.5563, -103.0711, 0)), False)
sketch3.addGeometry(Part.LineSegment(Vector(31.5563, -103.0711, 0), Vector(31.5563, -97.935, 0)), False)
sketch3.addGeometry(Part.LineSegment(Vector(31.5563, -97.935, 0), Vector(39.5563, -97.935, 0)), False)
sketch3.addGeometry(Part.LineSegment(Vector(39.5563, -97.935, 0), Vector(39.5563, -91.935, 0)), False)
sketch3.addGeometry(Part.LineSegment(Vector(39.5563, -91.935, 0), Vector(49.1066, -91.935, 0)), False)
sketch3.addGeometry(Part.LineSegment(Vector(49.1066, -91.935, 0), Vector(49.1066, -86.6569, 0)), False)
sketch3.addGeometry(Part.LineSegment(Vector(25.935, -96.0218, 0), Vector(-25.935, -96.0218, 0)), False)
sketch3.addGeometry(Part.LineSegment(Vector(-25.935, -96.0218, 0), Vector(-34.5352, -87.4216, 0)), False)
sketch3.addGeometry(Part.LineSegment(Vector(-34.5352, -87.4216, 0), Vector(-39.6602, -87.4216, 0)), False)
sketch3.addGeometry(Part.LineSegment(Vector(-39.6602, -87.4216, 0), Vector(-46.2203, -80.8614, 0)), False)
sketch3.addGeometry(Part.LineSegment(Vector(-46.2203, -80.8614, 0), Vector(-46.2203, -54.8264, 0)), False)
sketch3.addGeometry(Part.LineSegment(Vector(-46.2203, -54.8264, 0), Vector(-42.2102, -50.8163, 0)), False)
sketch3.addGeometry(Part.LineSegment(Vector(-42.2102, -50.8163, 0), Vector(-42.2102, -29.8813, 0)), False)
sketch3.addGeometry(Part.LineSegment(Vector(-42.2102, -29.8813, 0), Vector(-32.08, -19.7511, 0)), False)
sketch3.addGeometry(Part.LineSegment(Vector(-32.08, -19.7511, 0), Vector(-32.08, -9.5261, 0)), False)
sketch3.addGeometry(Part.LineSegment(Vector(-32.08, -9.5261, 0), Vector(-28.5798, -6.0259, 0)), False)
sketch3.addGeometry(Part.LineSegment(Vector(-28.5798, -6.0259, 0), Vector(-28.5798, 1.1391, 0)), False)
sketch3.addGeometry(Part.LineSegment(Vector(-28.5798, 1.1391, 0), Vector(28.5798, 1.1391, 0)), False)
sketch3.addGeometry(Part.LineSegment(Vector(28.5798, 1.1391, 0), Vector(28.5798, -6.0259, 0)), False)
sketch3.addGeometry(Part.LineSegment(Vector(28.5798, -6.0259, 0), Vector(32.08, -9.5261, 0)), False)
sketch3.addGeometry(Part.LineSegment(Vector(32.08, -9.5261, 0), Vector(32.08, -19.7511, 0)), False)
sketch3.addGeometry(Part.LineSegment(Vector(32.08, -19.7511, 0), Vector(42.2102, -29.8813, 0)), False)
sketch3.addGeometry(Part.LineSegment(Vector(42.2102, -29.8813, 0), Vector(42.2102, -50.8163, 0)), False)
sketch3.addGeometry(Part.LineSegment(Vector(42.2102, -50.8163, 0), Vector(46.2203, -54.8264, 0)), False)
sketch3.addGeometry(Part.LineSegment(Vector(46.2203, -54.8264, 0), Vector(46.2203, -80.8614, 0)), False)
sketch3.addGeometry(Part.LineSegment(Vector(46.2203, -80.8614, 0), Vector(39.6602, -87.4216, 0)), False)
sketch3.addGeometry(Part.LineSegment(Vector(39.6602, -87.4216, 0), Vector(34.5352, -87.4216, 0)), False)
sketch3.addGeometry(Part.LineSegment(Vector(34.5352, -87.4216, 0), Vector(25.935, -96.0218, 0)), False)
sketch3.addConstraint(Sketcher.Constraint("Coincident", 0, 2, 1, 1))
sketch3.addConstraint(Sketcher.Constraint("Coincident", 1, 2, 2, 1))
sketch3.addConstraint(Sketcher.Constraint("Coincident", 2, 2, 3, 1))
sketch3.addConstraint(Sketcher.Constraint("Coincident", 3, 2, 4, 1))
sketch3.addConstraint(Sketcher.Constraint("Coincident", 4, 2, 5, 1))
sketch3.addConstraint(Sketcher.Constraint("Coincident", 5, 2, 6, 1))
sketch3.addConstraint(Sketcher.Constraint("Coincident", 6, 2, 7, 1))
sketch3.addConstraint(Sketcher.Constraint("Coincident", 7, 2, 8, 1))
sketch3.addConstraint(Sketcher.Constraint("Coincident", 8, 2, 9, 1))
sketch3.addConstraint(Sketcher.Constraint("Coincident", 9, 2, 10, 1))
sketch3.addConstraint(Sketcher.Constraint("Coincident", 10, 2, 11, 1))
sketch3.addConstraint(Sketcher.Constraint("Coincident", 11, 2, 12, 1))
sketch3.addConstraint(Sketcher.Constraint("Coincident", 12, 2, 13, 1))
sketch3.addConstraint(Sketcher.Constraint("Coincident", 13, 2, 14, 1))
sketch3.addConstraint(Sketcher.Constraint("Coincident", 14, 2, 15, 1))
sketch3.addConstraint(Sketcher.Constraint("Coincident", 15, 2, 16, 1))
sketch3.addConstraint(Sketcher.Constraint("Coincident", 16, 2, 17, 1))
sketch3.addConstraint(Sketcher.Constraint("Coincident", 17, 2, 18, 1))
sketch3.addConstraint(Sketcher.Constraint("Coincident", 18, 2, 19, 1))
sketch3.addConstraint(Sketcher.Constraint("Coincident", 19, 2, 20, 1))
sketch3.addConstraint(Sketcher.Constraint("Coincident", 20, 2, 21, 1))
sketch3.addConstraint(Sketcher.Constraint("Coincident", 21, 2, 22, 1))
sketch3.addConstraint(Sketcher.Constraint("Coincident", 22, 2, 23, 1))
sketch3.addConstraint(Sketcher.Constraint("Coincident", 23, 2, 24, 1))
sketch3.addConstraint(Sketcher.Constraint("Coincident", 24, 2, 25, 1))
sketch3.addConstraint(Sketcher.Constraint("Coincident", 25, 2, 26, 1))
sketch3.addConstraint(Sketcher.Constraint("Coincident", 26, 2, 27, 1))
sketch3.addConstraint(Sketcher.Constraint("Coincident", 27, 2, 28, 1))
sketch3.addConstraint(Sketcher.Constraint("Coincident", 28, 2, 29, 1))
sketch3.addConstraint(Sketcher.Constraint("Coincident", 29, 2, 30, 1))
sketch3.addConstraint(Sketcher.Constraint("Coincident", 30, 2, 31, 1))
sketch3.addConstraint(Sketcher.Constraint("Coincident", 31, 2, 32, 1))
sketch3.addConstraint(Sketcher.Constraint("Coincident", 32, 2, 33, 1))
sketch3.addConstraint(Sketcher.Constraint("Coincident", 33, 2, 34, 1))
sketch3.addConstraint(Sketcher.Constraint("Coincident", 34, 2, 35, 1))
sketch3.addConstraint(Sketcher.Constraint("Coincident", 35, 2, 36, 1))
sketch3.addConstraint(Sketcher.Constraint("Coincident", 36, 2, 37, 1))
sketch3.addConstraint(Sketcher.Constraint("Coincident", 37, 2, 38, 1))
sketch3.addConstraint(Sketcher.Constraint("Coincident", 38, 2, 39, 1))
sketch3.addConstraint(Sketcher.Constraint("Coincident", 39, 2, 40, 1))
sketch3.addConstraint(Sketcher.Constraint("Coincident", 40, 2, 41, 1))
sketch3.addConstraint(Sketcher.Constraint("Coincident", 41, 2, 42, 1))
sketch3.addConstraint(Sketcher.Constraint("Coincident", 42, 2, 43, 1))
sketch3.addConstraint(Sketcher.Constraint("Coincident", 43, 2, 0, 1))
sketch3.addConstraint(Sketcher.Constraint("Coincident", 44, 2, 45, 1))
sketch3.addConstraint(Sketcher.Constraint("Coincident", 45, 2, 46, 1))
sketch3.addConstraint(Sketcher.Constraint("Coincident", 46, 2, 47, 1))
sketch3.addConstraint(Sketcher.Constraint("Coincident", 47, 2, 48, 1))
sketch3.addConstraint(Sketcher.Constraint("Coincident", 48, 2, 49, 1))
sketch3.addConstraint(Sketcher.Constraint("Coincident", 49, 2, 50, 1))
sketch3.addConstraint(Sketcher.Constraint("Coincident", 50, 2, 51, 1))
sketch3.addConstraint(Sketcher.Constraint("Coincident", 51, 2, 52, 1))
sketch3.addConstraint(Sketcher.Constraint("Coincident", 52, 2, 53, 1))
sketch3.addConstraint(Sketcher.Constraint("Coincident", 53, 2, 54, 1))
sketch3.addConstraint(Sketcher.Constraint("Coincident", 54, 2, 55, 1))
sketch3.addConstraint(Sketcher.Constraint("Coincident", 55, 2, 56, 1))
sketch3.addConstraint(Sketcher.Constraint("Coincident", 56, 2, 57, 1))
sketch3.addConstraint(Sketcher.Constraint("Coincident", 57, 2, 58, 1))
sketch3.addConstraint(Sketcher.Constraint("Coincident", 58, 2, 59, 1))
sketch3.addConstraint(Sketcher.Constraint("Coincident", 59, 2, 60, 1))
sketch3.addConstraint(Sketcher.Constraint("Coincident", 60, 2, 61, 1))
sketch3.addConstraint(Sketcher.Constraint("Coincident", 61, 2, 62, 1))
sketch3.addConstraint(Sketcher.Constraint("Coincident", 62, 2, 63, 1))
sketch3.addConstraint(Sketcher.Constraint("Coincident", 63, 2, 64, 1))
sketch3.addConstraint(Sketcher.Constraint("Coincident", 64, 2, 65, 1))
sketch3.addConstraint(Sketcher.Constraint("Coincident", 65, 2, 44, 1))
sketch3.addConstraint(Sketcher.Constraint("Horizontal", 0))
sketch3.addConstraint(Sketcher.Constraint("Vertical", 1))
sketch3.addConstraint(Sketcher.Constraint("Horizontal", 2))
sketch3.addConstraint(Sketcher.Constraint("Vertical", 3))
sketch3.addConstraint(Sketcher.Constraint("Horizontal", 4))
sketch3.addConstraint(Sketcher.Constraint("Vertical", 5))
sketch3.addConstraint(Sketcher.Constraint("Horizontal", 6))
sketch3.addConstraint(Sketcher.Constraint("Vertical", 7))
sketch3.addConstraint(Sketcher.Constraint("Horizontal", 8))
sketch3.addConstraint(Sketcher.Constraint("Vertical", 9))
sketch3.addConstraint(Sketcher.Constraint("Horizontal", 10))
sketch3.addConstraint(Sketcher.Constraint("Vertical", 11))
sketch3.addConstraint(Sketcher.Constraint("Horizontal", 12))
sketch3.addConstraint(Sketcher.Constraint("Vertical", 13))
sketch3.addConstraint(Sketcher.Constraint("Horizontal", 14))
sketch3.addConstraint(Sketcher.Constraint("Vertical", 15))
sketch3.addConstraint(Sketcher.Constraint("Horizontal", 16))
sketch3.addConstraint(Sketcher.Constraint("Vertical", 17))
sketch3.addConstraint(Sketcher.Constraint("Horizontal", 18))
sketch3.addConstraint(Sketcher.Constraint("Vertical", 19))
sketch3.addConstraint(Sketcher.Constraint("Horizontal", 20))
sketch3.addConstraint(Sketcher.Constraint("Vertical", 21))
sketch3.addConstraint(Sketcher.Constraint("Horizontal", 22))
sketch3.addConstraint(Sketcher.Constraint("Vertical", 23))
sketch3.addConstraint(Sketcher.Constraint("Horizontal", 24))
sketch3.addConstraint(Sketcher.Constraint("Vertical", 25))
sketch3.addConstraint(Sketcher.Constraint("Horizontal", 26))
sketch3.addConstraint(Sketcher.Constraint("Vertical", 27))
sketch3.addConstraint(Sketcher.Constraint("Horizontal", 28))
sketch3.addConstraint(Sketcher.Constraint("Vertical", 29))
sketch3.addConstraint(Sketcher.Constraint("Horizontal", 30))
sketch3.addConstraint(Sketcher.Constraint("Vertical", 31))
sketch3.addConstraint(Sketcher.Constraint("Horizontal", 32))
sketch3.addConstraint(Sketcher.Constraint("Vertical", 33))
sketch3.addConstraint(Sketcher.Constraint("Horizontal", 34))
sketch3.addConstraint(Sketcher.Constraint("Vertical", 35))
sketch3.addConstraint(Sketcher.Constraint("Horizontal", 36))
sketch3.addConstraint(Sketcher.Constraint("Vertical", 37))
sketch3.addConstraint(Sketcher.Constraint("Horizontal", 38))
sketch3.addConstraint(Sketcher.Constraint("Vertical", 39))
sketch3.addConstraint(Sketcher.Constraint("Horizontal", 40))
sketch3.addConstraint(Sketcher.Constraint("Vertical", 41))
sketch3.addConstraint(Sketcher.Constraint("Horizontal", 42))
sketch3.addConstraint(Sketcher.Constraint("Vertical", 43))
sketch3.addConstraint(Sketcher.Constraint("Horizontal", 44))
sketch3.addConstraint(Sketcher.Constraint("Horizontal", 46))
sketch3.addConstraint(Sketcher.Constraint("Vertical", 48))
sketch3.addConstraint(Sketcher.Constraint("Vertical", 50))
sketch3.addConstraint(Sketcher.Constraint("Vertical", 52))
sketch3.addConstraint(Sketcher.Constraint("Vertical", 54))
sketch3.addConstraint(Sketcher.Constraint("Horizontal", 55))
sketch3.addConstraint(Sketcher.Constraint("Vertical", 56))
sketch3.addConstraint(Sketcher.Constraint("Vertical", 58))
sketch3.addConstraint(Sketcher.Constraint("Vertical", 60))
sketch3.addConstraint(Sketcher.Constraint("Vertical", 62))
sketch3.addConstraint(Sketcher.Constraint("Horizontal", 64))
sketch3.addConstraint(Sketcher.Constraint("Symmetric", 12, 2, 15, 2, -2))
sketch3.addConstraint(Sketcher.Constraint("Symmetric", 10, 2, 17, 2, -2))
sketch3.addConstraint(Sketcher.Constraint("Symmetric", 8, 2, 19, 2, -2))
sketch3.addConstraint(Sketcher.Constraint("Symmetric", 6, 2, 21, 2, -2))
sketch3.addConstraint(Sketcher.Constraint("Symmetric", 4, 2, 23, 2, -2))
sketch3.addConstraint(Sketcher.Constraint("Symmetric", 2, 2, 25, 2, -2))
sketch3.addConstraint(Sketcher.Constraint("Symmetric", 0, 2, 27, 2, -2))
sketch3.addConstraint(Sketcher.Constraint("Symmetric", 34, 2, 37, 2, -2))
sketch3.addConstraint(Sketcher.Constraint("Symmetric", 32, 2, 39, 2, -2))
sketch3.addConstraint(Sketcher.Constraint("Symmetric", 30, 2, 41, 2, -2))
sketch3.addConstraint(Sketcher.Constraint("Symmetric", 53, 2, 56, 2, -2))
sketch3.addConstraint(Sketcher.Constraint("Symmetric", 52, 2, 57, 2, -2))
sketch3.addConstraint(Sketcher.Constraint("Symmetric", 50, 2, 59, 2, -2))
sketch3.addConstraint(Sketcher.Constraint("Symmetric", 48, 2, 61, 2, -2))
sketch3.addConstraint(Sketcher.Constraint("Symmetric", 46, 2, 63, 2, -2))
sketch3.addConstraint(Sketcher.Constraint("Parallel", 45, 47))
sketch3.addConstraint(Sketcher.Constraint("Perpendicular", 47, 49))
sketch3.addConstraint(Sketcher.Constraint("Parallel", 49, 51))
sketch3.addConstraint(Sketcher.Constraint("Parallel", 51, 53))
sketch3.addConstraint(Sketcher.Constraint("Perpendicular", 53, 57))
sketch3.addConstraint(Sketcher.Constraint("Parallel", 57, 59))
sketch3.addConstraint(Sketcher.Constraint("Parallel", 59, 61))
sketch3.addConstraint(Sketcher.Constraint("Perpendicular", 61, 63))
sketch3.addConstraint(Sketcher.Constraint("Parallel", 63, 65))
sketch3.addConstraint(Sketcher.Constraint("Horizontal", 4, 2, 7, 2))
sketch3.addConstraint(Sketcher.Constraint("Horizontal", 2, 2, 9, 2))
sketch3.addConstraint(Sketcher.Constraint("Horizontal", 8, 2, 11, 2))
sketch3.addConstraint(Sketcher.Constraint("Horizontal", 6, 2, 13, 2))
sketch3.addConstraint(Sketcher.Constraint("Equal", 4, 6))
sketch3.addConstraint(Sketcher.Constraint("Equal", 6, 8))
sketch3.addConstraint(Sketcher.Constraint("Equal", 8, 12))
sketch3.addConstraint(Sketcher.Constraint("Equal", 0, 28))
sketch3.addConstraint(Sketcher.Constraint("Equal", 46, 64))
sketch3.addConstraint(Sketcher.Constraint("Equal", 26, 3))
sketch3.addConstraint(Sketcher.Constraint("Equal", 24, 5))
sketch3.addConstraint(Sketcher.Constraint("DistanceX", 2, 2, 2, 1, Q("10 mm")))
sketch3.addConstraint(Sketcher.Constraint("DistanceX", 4, 2, 4, 1, Q("5 mm")))
sketch3.addConstraint(Sketcher.Constraint("DistanceX", 10, 2, 10, 1, Q("20 mm")))
sketch3.addConstraint(Sketcher.Constraint("DistanceX", 32, 1, 32, 2, Q("8 mm")))
sketch3.addConstraint(Sketcher.Constraint("DistanceY", 1, 1, 1, 2, Q("110 mm")))
sketch3.addConstraint(Sketcher.Constraint("DistanceY", 31, 2, 31, 1, Q("6 mm")))
sketch3.addConstraint(Sketcher.Constraint("DistanceY", 35, 2, 35, 1, Q("7 mm")))
sketch3.addConstraint(Sketcher.Constraint("DistanceX", 34, 2, -1, 1, Q("24 mm")))
sketch3.addConstraint(Sketcher.Constraint("Distance", 53, Q("4.95 mm")))
sketch3.addConstraint(Sketcher.Constraint("DistanceX", 46, 2, 46, 1, Q("5.125 mm")))
sketch3.addConstraint(Sketcher.Constraint("DistanceY", 48, 1, 48, 2, Q("26.035 mm")))
sketch3.addConstraint(Sketcher.Constraint("DistanceY", 50, 1, 50, 2, Q("20.935 mm")))
sketch3.addConstraint(Sketcher.Constraint("DistanceY", 52, 1, 52, 2, Q("10.225 mm")))
sketch3.addConstraint(Sketcher.Constraint("DistanceY", 54, 1, 54, 2, Q("7.165 mm")))
sketch3.addConstraint(Sketcher.Constraint("Distance", 45, Q("12.1625 mm")))
sketch3.addConstraint(Sketcher.Constraint("Distance", 47, Q("9.2775 mm")))
sketch3.addConstraint(Sketcher.Constraint("Distance", 49, Q("5.6711 mm")))
sketch3.addConstraint(Sketcher.Constraint("Distance", 51, Q("14.3263 mm")))
sketch3.addConstraint(Sketcher.Constraint("DistanceX", 44, 2, 44, 1, Q("51.87 mm")))
sketch3.addConstraint(Sketcher.Constraint("DistanceX", 0, 1, 0, 2, Q("6.136 mm")))
sketch3.addConstraint(Sketcher.Constraint("DistanceY", 29, 2, 29, 1, Q("5.278 mm")))
sketch3.addConstraint(Sketcher.Constraint("DistanceY", 33, 2, 33, 1, Q("5.136 mm")))
sketch3.addConstraint(Sketcher.Constraint("DistanceX", 14, 2, 14, 1, Q("10.4852 mm")))
sketch3.addConstraint(Sketcher.Constraint("DistanceX", 30, 1, 30, 2, Q("9.5503 mm")))
sketch3.addConstraint(Sketcher.Constraint("DistanceY", 0, 2, -1, 1, Q("86.657 mm")))
sketch3.addConstraint(Sketcher.Constraint("DistanceY", 51, 2, -1, 1, Q("19.751 mm")))
pad3 = body.newObject("PartDesign::Pad", "Pad002")
pad3.Profile = sketch3
pad3.Length = 40

sketch4 = body.newObject("Sketcher::SketchObject", "Sketch003")
sketch4.AttachmentSupport = (doc.getObject("YZ_Plane"), [""])
sketch4.MapMode = "FlatFace"
sketch4.AttachmentOffset = App.Placement(Vector(0, 0, 55.2426), App.Rotation())
sketch4.addGeometry(Part.LineSegment(Vector(-36.8573, 4.9813, 0), Vector(-6.8573, 4.9813, 0)), False)
sketch4.addGeometry(Part.LineSegment(Vector(-6.8573, 4.9813, 0), Vector(-6.8573, 32.9813, 0)), False)
sketch4.addGeometry(Part.LineSegment(Vector(-6.8573, 32.9813, 0), Vector(-36.8573, 32.9813, 0)), False)
sketch4.addGeometry(Part.LineSegment(Vector(-36.8573, 32.9813, 0), Vector(-36.8573, 4.9813, 0)), False)
sketch4.addConstraint(Sketcher.Constraint("Coincident", 0, 2, 1, 1))
sketch4.addConstraint(Sketcher.Constraint("Coincident", 1, 2, 2, 1))
sketch4.addConstraint(Sketcher.Constraint("Coincident", 2, 2, 3, 1))
sketch4.addConstraint(Sketcher.Constraint("Coincident", 3, 2, 0, 1))
sketch4.addConstraint(Sketcher.Constraint("Horizontal", 0))
sketch4.addConstraint(Sketcher.Constraint("Vertical", 1))
sketch4.addConstraint(Sketcher.Constraint("Horizontal", 2))
sketch4.addConstraint(Sketcher.Constraint("Vertical", 3))
sketch4.addConstraint(Sketcher.Constraint("DistanceX", 0, 1, 0, 2, Q("30 mm")))
sketch4.addConstraint(Sketcher.Constraint("DistanceY", 1, 1, 1, 2, Q("28 mm")))
sketch4.addConstraint(Sketcher.Constraint("DistanceX", 0, 2, -1, 1, Q("6.8573 mm")))
sketch4.addConstraint(Sketcher.Constraint("DistanceY", -1, 1, 0, 2, Q("4.9813 mm")))
pocket1 = body.newObject("PartDesign::Pocket", "Pocket")
pocket1.Profile = sketch4
pocket1.Length = 60
pocket1.Midplane = True

doc.recompute()
